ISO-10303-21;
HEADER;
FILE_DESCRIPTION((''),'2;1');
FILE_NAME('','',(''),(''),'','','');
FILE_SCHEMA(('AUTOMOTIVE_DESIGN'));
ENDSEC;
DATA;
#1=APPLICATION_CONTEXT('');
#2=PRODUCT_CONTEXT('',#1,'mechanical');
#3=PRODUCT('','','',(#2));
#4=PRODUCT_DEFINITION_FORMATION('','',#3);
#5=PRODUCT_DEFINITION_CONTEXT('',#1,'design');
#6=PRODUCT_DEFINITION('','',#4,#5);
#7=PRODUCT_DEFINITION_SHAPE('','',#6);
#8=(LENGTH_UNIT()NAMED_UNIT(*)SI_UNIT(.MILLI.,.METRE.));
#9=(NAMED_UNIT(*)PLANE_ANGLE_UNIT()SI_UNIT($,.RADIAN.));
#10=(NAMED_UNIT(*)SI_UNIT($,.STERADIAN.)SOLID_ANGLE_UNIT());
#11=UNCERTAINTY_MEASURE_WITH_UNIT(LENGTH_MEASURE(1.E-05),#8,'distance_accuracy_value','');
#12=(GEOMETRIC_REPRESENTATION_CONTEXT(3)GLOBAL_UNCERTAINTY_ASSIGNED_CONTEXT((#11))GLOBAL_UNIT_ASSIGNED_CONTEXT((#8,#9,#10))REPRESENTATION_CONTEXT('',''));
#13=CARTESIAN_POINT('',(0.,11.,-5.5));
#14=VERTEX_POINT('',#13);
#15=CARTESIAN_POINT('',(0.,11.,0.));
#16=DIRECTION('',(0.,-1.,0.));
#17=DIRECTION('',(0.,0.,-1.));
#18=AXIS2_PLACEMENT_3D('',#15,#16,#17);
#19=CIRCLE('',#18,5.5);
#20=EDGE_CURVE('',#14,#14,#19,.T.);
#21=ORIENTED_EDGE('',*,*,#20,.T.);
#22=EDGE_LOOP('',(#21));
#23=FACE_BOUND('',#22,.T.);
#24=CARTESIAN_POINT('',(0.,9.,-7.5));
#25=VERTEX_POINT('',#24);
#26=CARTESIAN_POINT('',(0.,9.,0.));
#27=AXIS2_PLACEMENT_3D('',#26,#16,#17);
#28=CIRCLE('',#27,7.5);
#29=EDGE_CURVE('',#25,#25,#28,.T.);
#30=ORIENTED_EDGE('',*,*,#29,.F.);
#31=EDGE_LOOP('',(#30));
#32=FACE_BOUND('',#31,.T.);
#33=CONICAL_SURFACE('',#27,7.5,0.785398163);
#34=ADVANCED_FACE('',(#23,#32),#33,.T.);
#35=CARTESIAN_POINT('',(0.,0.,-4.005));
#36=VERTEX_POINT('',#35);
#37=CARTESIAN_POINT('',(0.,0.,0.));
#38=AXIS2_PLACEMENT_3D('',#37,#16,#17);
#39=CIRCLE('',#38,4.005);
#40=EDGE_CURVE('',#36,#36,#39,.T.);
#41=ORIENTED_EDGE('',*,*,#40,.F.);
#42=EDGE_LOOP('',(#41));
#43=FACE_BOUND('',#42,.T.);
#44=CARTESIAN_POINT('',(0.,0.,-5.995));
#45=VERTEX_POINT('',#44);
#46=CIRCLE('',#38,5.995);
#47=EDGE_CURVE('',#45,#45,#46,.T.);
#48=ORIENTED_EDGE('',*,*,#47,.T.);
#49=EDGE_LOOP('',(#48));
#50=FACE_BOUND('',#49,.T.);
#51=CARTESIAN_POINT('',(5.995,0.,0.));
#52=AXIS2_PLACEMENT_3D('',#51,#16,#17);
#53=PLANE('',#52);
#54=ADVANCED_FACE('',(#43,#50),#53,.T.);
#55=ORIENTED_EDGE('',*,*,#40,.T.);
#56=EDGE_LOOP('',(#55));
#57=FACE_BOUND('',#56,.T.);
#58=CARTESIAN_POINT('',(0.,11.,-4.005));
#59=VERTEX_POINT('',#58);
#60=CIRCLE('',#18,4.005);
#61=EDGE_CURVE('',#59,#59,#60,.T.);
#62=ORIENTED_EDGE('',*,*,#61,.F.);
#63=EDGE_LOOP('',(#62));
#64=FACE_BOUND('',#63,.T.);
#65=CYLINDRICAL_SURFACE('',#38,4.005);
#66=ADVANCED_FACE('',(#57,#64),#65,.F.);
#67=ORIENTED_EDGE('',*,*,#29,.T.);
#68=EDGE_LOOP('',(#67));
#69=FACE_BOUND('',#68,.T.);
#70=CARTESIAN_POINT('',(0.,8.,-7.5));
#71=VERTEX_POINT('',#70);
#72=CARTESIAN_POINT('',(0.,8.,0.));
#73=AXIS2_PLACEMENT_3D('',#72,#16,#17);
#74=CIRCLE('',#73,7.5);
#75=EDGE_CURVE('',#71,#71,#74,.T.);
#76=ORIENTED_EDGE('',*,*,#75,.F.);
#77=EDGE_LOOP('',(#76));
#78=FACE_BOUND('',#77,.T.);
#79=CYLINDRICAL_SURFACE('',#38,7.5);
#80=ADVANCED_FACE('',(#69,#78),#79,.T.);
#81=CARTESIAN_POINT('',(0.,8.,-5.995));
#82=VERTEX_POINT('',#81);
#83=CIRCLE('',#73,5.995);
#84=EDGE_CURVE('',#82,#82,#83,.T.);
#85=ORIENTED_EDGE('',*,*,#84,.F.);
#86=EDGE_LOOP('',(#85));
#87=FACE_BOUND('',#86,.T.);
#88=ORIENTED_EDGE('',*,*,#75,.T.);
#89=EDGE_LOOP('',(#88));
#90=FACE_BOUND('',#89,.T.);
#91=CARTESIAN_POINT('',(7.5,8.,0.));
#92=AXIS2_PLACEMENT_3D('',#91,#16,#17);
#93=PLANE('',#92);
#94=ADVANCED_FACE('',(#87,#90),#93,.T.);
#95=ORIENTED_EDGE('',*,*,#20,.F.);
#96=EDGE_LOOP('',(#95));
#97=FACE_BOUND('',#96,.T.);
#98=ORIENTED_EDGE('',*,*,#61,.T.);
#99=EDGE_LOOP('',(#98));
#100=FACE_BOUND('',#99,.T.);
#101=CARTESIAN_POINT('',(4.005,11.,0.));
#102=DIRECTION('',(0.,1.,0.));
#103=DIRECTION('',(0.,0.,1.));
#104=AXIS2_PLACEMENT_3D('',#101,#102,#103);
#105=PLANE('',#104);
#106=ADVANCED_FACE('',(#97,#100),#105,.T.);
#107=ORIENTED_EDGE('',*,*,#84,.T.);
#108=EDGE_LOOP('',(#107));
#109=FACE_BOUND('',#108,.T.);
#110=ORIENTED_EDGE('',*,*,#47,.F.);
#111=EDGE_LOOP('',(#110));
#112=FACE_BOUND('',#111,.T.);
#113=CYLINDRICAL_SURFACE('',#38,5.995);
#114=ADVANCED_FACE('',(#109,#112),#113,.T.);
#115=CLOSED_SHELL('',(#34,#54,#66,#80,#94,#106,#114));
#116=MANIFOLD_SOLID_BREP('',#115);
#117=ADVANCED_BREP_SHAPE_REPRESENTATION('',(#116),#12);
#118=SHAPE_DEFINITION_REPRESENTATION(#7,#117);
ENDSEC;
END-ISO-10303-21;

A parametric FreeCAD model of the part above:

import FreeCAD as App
import Part
import Sketcher
Q = App.Units.Quantity

doc = App.newDocument("Part")
body = doc.addObject("PartDesign::Body", "Body")

# Sketch on XY plane
sketch1 = body.newObject("Sketcher::SketchObject", "Sketch")
sketch1.AttachmentSupport = (doc.getObject("XY_Plane"), [""])
sketch1.MapMode = "FlatFace"
sketch1.addGeometry([
    Part.LineSegment(App.Vector(4, 11, 0), App.Vector(4, 0, 0)),  # 0
    Part.LineSegment(App.Vector(4, 0, 0), App.Vector(6, 0, 0)),  # 1
    Part.LineSegment(App.Vector(6, 0, 0), App.Vector(6, 8, 0)),  # 2
    Part.LineSegment(App.Vector(6, 8, 0), App.Vector(7.5, 8, 0)),  # 3
    Part.LineSegment(App.Vector(7.5, 8, 0), App.Vector(7.5, 9, 0)),  # 4
    Part.LineSegment(App.Vector(7.5, 9, 0), App.Vector(5.5, 11, 0)),  # 5
    Part.LineSegment(App.Vector(5.5, 11, 0), App.Vector(4, 11, 0)),  # 6
], False)
sketch1.addConstraint([
    Sketcher.Constraint("Coincident", 0, 2, 1, 1),
    Sketcher.Constraint("Coincident", 1, 2, 2, 1),
    Sketcher.Constraint("Coincident", 2, 2, 3, 1),
    Sketcher.Constraint("Coincident", 3, 2, 4, 1),
    Sketcher.Constraint("Coincident", 4, 2, 5, 1),
    Sketcher.Constraint("Coincident", 5, 2, 6, 1),
    Sketcher.Constraint("Coincident", 6, 2, 0, 1),
    Sketcher.Constraint("Vertical", 0),
    Sketcher.Constraint("Horizontal", 1),
    Sketcher.Constraint("Vertical", 2),
    Sketcher.Constraint("Horizontal", 3),
    Sketcher.Constraint("Vertical", 4),
    Sketcher.Constraint("Horizontal", 6),
    Sketcher.Constraint("PointOnObject", 0, 2, -1),
    Sketcher.Constraint("DistanceY", 0, 2, 0, 1, 11.0),
    Sketcher.Constraint("DistanceY", 2, 1, 2, 2, 8.0),
    Sketcher.Constraint("DistanceY", 4, 1, 4, 2, 1.0),
    Sketcher.Constraint("Angle", 5, Q("135 deg")),
    Sketcher.Constraint("DistanceX", 1, 1, 1, 2, 1.99),
    Sketcher.Constraint("DistanceX", -1, 1, 3, 2, 7.5),
    Sketcher.Constraint("DistanceX", 3, 1, 3, 2, 1.505),
])
revolution = body.newObject("PartDesign::Revolution", "Revolution")
revolution.Profile = sketch1
revolution.ReferenceAxis = (sketch1, ["V_Axis"])
revolution.Angle = 360

doc.recompute()
